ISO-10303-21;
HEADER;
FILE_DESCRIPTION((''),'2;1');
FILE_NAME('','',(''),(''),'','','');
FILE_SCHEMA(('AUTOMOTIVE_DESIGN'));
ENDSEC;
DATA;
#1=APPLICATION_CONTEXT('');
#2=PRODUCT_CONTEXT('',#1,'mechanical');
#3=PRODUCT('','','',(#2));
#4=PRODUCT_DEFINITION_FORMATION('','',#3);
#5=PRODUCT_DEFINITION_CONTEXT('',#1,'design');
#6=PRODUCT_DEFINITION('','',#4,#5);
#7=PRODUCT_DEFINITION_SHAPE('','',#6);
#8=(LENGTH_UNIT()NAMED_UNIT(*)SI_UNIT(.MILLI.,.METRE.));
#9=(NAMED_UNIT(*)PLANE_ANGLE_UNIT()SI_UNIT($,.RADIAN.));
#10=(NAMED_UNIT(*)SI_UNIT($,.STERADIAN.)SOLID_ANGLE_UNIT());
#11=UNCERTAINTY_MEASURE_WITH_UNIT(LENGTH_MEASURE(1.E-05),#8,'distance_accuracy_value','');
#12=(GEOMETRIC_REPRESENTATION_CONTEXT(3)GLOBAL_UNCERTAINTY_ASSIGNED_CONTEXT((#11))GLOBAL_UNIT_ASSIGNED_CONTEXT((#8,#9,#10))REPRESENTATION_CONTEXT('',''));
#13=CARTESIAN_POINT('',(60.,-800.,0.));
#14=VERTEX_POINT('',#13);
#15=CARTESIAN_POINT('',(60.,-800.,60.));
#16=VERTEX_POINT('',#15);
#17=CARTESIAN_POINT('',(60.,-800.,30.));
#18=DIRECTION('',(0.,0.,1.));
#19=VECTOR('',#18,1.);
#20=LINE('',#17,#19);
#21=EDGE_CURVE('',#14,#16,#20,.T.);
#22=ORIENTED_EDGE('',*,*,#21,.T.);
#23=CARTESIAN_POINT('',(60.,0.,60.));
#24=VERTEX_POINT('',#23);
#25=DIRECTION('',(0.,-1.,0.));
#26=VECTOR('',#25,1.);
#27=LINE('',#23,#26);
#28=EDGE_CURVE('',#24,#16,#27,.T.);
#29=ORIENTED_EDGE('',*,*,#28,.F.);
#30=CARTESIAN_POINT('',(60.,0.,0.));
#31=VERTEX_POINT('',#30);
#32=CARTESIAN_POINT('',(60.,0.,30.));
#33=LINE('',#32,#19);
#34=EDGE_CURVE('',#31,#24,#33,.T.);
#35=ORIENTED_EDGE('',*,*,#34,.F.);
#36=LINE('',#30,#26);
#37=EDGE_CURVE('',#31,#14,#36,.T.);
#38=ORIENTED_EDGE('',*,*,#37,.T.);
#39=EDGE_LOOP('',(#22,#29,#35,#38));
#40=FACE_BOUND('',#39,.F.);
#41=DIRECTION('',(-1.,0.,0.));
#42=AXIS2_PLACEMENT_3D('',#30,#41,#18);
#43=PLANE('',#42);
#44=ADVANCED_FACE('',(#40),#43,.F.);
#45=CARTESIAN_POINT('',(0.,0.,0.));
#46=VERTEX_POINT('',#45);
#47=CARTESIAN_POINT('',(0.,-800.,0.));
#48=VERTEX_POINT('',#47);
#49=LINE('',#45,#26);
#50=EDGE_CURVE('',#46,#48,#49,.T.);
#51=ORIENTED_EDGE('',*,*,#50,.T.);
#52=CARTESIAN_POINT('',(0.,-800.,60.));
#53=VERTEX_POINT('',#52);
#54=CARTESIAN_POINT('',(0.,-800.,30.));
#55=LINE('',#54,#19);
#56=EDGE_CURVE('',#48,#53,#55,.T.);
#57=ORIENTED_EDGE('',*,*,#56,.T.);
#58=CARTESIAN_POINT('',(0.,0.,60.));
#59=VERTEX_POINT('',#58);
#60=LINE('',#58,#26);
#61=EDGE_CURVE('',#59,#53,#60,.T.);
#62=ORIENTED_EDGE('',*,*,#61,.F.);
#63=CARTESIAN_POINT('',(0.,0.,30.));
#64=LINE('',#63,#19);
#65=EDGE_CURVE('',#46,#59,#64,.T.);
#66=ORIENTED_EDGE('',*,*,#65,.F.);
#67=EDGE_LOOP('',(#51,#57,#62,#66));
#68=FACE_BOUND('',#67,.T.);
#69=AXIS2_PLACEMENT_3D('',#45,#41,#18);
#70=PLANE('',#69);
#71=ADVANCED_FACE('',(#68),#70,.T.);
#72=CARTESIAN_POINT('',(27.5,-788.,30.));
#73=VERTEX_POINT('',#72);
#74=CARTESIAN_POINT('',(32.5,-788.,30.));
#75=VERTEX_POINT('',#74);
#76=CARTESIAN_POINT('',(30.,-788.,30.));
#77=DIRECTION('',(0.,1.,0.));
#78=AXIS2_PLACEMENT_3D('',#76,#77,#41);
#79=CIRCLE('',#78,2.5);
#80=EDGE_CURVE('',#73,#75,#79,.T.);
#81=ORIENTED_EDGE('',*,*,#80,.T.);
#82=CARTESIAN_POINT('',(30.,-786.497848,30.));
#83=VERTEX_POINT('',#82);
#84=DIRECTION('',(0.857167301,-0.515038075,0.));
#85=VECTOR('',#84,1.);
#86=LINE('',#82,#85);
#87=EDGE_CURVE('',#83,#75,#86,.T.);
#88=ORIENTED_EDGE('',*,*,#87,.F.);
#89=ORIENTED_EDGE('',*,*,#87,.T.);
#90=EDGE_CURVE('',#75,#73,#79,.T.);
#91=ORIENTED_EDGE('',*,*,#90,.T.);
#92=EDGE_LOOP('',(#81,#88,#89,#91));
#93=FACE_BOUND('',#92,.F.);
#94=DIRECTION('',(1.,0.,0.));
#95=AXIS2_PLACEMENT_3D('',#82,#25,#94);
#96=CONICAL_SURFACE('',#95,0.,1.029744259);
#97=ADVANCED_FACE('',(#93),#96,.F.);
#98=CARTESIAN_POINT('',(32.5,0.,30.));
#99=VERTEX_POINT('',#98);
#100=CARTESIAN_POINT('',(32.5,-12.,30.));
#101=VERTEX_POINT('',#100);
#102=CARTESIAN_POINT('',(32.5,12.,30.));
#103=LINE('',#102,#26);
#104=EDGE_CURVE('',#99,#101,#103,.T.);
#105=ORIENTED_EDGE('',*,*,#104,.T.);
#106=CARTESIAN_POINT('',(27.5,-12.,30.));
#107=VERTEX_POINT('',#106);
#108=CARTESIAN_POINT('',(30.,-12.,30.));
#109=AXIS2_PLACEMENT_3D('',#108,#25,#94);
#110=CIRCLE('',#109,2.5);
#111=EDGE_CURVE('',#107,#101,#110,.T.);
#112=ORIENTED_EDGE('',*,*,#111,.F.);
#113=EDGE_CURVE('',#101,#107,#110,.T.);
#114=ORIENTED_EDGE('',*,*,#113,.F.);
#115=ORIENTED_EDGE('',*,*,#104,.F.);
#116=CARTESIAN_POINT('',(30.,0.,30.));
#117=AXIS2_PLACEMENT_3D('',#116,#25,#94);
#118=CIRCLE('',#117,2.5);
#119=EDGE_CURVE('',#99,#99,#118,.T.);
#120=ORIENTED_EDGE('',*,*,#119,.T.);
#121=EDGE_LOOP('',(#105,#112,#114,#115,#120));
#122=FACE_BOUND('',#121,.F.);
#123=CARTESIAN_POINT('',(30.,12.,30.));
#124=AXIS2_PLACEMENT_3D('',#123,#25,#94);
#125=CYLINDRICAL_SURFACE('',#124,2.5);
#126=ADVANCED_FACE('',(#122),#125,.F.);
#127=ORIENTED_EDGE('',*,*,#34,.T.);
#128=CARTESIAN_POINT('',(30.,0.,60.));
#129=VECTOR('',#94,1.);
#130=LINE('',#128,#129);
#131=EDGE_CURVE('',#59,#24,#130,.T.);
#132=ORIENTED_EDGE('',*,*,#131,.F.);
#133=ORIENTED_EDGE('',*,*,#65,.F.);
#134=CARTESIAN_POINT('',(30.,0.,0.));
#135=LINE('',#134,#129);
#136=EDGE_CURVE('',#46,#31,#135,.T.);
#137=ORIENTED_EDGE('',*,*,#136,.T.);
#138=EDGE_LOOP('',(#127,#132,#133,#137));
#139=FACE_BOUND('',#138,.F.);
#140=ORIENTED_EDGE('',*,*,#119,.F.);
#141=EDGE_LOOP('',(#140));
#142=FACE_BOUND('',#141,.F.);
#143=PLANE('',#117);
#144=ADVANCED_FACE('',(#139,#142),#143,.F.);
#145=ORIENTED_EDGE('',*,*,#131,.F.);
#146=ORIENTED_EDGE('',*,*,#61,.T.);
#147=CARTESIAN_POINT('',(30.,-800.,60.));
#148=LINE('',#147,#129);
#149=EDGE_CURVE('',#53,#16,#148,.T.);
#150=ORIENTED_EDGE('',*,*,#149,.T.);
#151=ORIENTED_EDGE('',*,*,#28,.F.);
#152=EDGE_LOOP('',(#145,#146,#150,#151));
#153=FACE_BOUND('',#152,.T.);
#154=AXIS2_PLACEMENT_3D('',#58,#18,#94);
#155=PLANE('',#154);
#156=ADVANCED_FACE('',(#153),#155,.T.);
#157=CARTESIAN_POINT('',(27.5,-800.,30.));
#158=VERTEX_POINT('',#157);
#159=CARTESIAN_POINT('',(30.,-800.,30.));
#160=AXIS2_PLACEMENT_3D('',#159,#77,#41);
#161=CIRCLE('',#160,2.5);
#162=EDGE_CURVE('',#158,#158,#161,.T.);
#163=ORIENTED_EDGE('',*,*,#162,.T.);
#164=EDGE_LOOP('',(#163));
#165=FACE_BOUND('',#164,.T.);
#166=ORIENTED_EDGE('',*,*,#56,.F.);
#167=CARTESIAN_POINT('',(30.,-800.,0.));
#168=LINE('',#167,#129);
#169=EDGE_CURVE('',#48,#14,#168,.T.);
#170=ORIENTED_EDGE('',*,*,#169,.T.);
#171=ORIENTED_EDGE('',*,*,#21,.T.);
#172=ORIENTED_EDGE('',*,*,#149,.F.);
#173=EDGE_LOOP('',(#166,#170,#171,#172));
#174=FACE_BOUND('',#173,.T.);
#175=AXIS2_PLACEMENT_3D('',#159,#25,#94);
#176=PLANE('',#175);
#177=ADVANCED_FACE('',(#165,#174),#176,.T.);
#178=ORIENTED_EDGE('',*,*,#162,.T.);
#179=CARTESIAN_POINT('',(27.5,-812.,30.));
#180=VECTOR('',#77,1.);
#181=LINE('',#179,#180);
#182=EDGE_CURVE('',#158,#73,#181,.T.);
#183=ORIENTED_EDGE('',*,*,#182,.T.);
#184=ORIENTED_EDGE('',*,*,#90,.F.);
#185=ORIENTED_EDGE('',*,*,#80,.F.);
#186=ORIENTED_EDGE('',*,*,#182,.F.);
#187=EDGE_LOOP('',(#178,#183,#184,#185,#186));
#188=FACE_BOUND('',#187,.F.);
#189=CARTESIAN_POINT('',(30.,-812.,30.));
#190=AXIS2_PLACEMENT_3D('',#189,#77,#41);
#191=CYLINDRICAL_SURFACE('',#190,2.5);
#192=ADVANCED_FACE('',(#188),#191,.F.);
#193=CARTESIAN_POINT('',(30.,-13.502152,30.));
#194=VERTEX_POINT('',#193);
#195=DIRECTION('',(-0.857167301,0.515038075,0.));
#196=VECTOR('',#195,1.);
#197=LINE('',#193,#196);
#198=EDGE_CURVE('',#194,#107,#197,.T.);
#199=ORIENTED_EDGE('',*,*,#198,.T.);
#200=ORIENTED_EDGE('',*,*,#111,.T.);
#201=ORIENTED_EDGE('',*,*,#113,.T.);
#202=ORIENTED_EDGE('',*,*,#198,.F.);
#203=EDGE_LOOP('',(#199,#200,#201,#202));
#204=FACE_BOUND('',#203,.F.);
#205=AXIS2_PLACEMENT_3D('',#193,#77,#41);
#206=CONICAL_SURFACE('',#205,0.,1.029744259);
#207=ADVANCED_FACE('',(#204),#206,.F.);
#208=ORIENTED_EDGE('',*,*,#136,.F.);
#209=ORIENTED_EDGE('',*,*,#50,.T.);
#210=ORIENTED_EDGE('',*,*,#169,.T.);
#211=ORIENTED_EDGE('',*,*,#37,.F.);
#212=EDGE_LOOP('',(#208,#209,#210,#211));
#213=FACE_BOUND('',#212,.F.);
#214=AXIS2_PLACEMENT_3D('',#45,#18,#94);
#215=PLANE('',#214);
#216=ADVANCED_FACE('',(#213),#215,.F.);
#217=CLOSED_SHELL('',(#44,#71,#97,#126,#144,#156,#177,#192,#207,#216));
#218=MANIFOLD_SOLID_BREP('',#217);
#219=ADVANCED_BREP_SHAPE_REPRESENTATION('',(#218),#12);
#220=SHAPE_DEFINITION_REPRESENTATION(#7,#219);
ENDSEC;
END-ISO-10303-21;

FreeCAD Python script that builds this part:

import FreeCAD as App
import Part
import Sketcher

doc = App.newDocument("Part")
body = doc.addObject("PartDesign::Body", "Body")

# Sketch on XZ plane
sketch1 = body.newObject("Sketcher::SketchObject", "Sketch")
sketch1.AttachmentSupport = (doc.getObject("XZ_Plane"), [""])
sketch1.MapMode = "FlatFace"
sketch1.addGeometry([
    Part.LineSegment(App.Vector(0, 60, 0), App.Vector(0, 0, 0)),
    Part.LineSegment(App.Vector(0, 0, 0), App.Vector(60, 0, 0)),
    Part.LineSegment(App.Vector(60, 0, 0), App.Vector(60, 60, 0)),
    Part.LineSegment(App.Vector(60, 60, 0), App.Vector(0, 60, 0)),
], False)
sketch1.addConstraint([
    Sketcher.Constraint("Coincident", 0, 2, 1, 1),
    Sketcher.Constraint("Coincident", 1, 2, 2, 1),
    Sketcher.Constraint("Coincident", 2, 2, 3, 1),
    Sketcher.Constraint("Coincident", 3, 2, 0, 1),
    Sketcher.Constraint("Vertical", 0),
    Sketcher.Constraint("Horizontal", 1),
    Sketcher.Constraint("Vertical", 2),
    Sketcher.Constraint("Horizontal", 3),
    Sketcher.Constraint("Coincident", 0, 2, -1, 1),
    Sketcher.Constraint("Equal", 3, 0),
    Sketcher.Constraint("DistanceX", 1, 1, 1, 2, 60.0),
])
pad1 = body.newObject("PartDesign::Pad", "Pad")
pad1.Profile = sketch1
pad1.Length = 800

# Sketch on XZ plane
sketch2 = body.newObject("Sketcher::SketchObject", "Sketch001")
sketch2.AttachmentSupport = (doc.getObject("XZ_Plane"), [""])
sketch2.MapMode = "FlatFace"
sketch2.AttachmentOffset = App.Placement(App.Vector(0, 0, 800), App.Rotation())
sketch2.addGeometry(Part.Circle(App.Vector(30, 30, 0), App.Vector(0, 0, 1), 2.5), False)
sketch2.addConstraint([
    Sketcher.Constraint("Diameter", 0, 5.0),
    Sketcher.Constraint("DistanceX", -1, 1, 0, 3, 30.0),
    Sketcher.Constraint("DistanceY", -1, 1, 0, 3, 30.0),
])
doc.recompute()
hole = body.newObject("PartDesign::Hole", "Hole")
hole.Profile = sketch2
hole.ThreadType = "None"
hole.Diameter = 5
hole.DepthType = "Dimension"
hole.Depth = 12
hole.DrillPoint = "Angled"
hole.DrillPointAngle = 118

# Sketch on XZ plane
sketch3 = body.newObject("Sketcher::SketchObject", "Sketch002")
sketch3.AttachmentSupport = (doc.getObject("XZ_Plane"), [""])
sketch3.MapMode = "FlatFace"
sketch3.addGeometry(Part.Circle(App.Vector(30, 30, 0), App.Vector(0, 0, 1), 2.5), False)
sketch3.addConstraint([
    Sketcher.Constraint("Diameter", 0, 5.0),
    Sketcher.Constraint("DistanceX", -1, 1, 0, 3, 30.0),
    Sketcher.Constraint("DistanceY", -1, 1, 0, 3, 30.0),
])
doc.recompute()
hole2 = body.newObject("PartDesign::Hole", "Hole001")
hole2.Profile = sketch3
hole2.ThreadType = "None"
hole2.Diameter = 5
hole2.DepthType = "Dimension"
hole2.Depth = 12
hole2.DrillPoint = "Angled"
hole2.DrillPointAngle = 118
hole2.Reversed = True

doc.recompute()
